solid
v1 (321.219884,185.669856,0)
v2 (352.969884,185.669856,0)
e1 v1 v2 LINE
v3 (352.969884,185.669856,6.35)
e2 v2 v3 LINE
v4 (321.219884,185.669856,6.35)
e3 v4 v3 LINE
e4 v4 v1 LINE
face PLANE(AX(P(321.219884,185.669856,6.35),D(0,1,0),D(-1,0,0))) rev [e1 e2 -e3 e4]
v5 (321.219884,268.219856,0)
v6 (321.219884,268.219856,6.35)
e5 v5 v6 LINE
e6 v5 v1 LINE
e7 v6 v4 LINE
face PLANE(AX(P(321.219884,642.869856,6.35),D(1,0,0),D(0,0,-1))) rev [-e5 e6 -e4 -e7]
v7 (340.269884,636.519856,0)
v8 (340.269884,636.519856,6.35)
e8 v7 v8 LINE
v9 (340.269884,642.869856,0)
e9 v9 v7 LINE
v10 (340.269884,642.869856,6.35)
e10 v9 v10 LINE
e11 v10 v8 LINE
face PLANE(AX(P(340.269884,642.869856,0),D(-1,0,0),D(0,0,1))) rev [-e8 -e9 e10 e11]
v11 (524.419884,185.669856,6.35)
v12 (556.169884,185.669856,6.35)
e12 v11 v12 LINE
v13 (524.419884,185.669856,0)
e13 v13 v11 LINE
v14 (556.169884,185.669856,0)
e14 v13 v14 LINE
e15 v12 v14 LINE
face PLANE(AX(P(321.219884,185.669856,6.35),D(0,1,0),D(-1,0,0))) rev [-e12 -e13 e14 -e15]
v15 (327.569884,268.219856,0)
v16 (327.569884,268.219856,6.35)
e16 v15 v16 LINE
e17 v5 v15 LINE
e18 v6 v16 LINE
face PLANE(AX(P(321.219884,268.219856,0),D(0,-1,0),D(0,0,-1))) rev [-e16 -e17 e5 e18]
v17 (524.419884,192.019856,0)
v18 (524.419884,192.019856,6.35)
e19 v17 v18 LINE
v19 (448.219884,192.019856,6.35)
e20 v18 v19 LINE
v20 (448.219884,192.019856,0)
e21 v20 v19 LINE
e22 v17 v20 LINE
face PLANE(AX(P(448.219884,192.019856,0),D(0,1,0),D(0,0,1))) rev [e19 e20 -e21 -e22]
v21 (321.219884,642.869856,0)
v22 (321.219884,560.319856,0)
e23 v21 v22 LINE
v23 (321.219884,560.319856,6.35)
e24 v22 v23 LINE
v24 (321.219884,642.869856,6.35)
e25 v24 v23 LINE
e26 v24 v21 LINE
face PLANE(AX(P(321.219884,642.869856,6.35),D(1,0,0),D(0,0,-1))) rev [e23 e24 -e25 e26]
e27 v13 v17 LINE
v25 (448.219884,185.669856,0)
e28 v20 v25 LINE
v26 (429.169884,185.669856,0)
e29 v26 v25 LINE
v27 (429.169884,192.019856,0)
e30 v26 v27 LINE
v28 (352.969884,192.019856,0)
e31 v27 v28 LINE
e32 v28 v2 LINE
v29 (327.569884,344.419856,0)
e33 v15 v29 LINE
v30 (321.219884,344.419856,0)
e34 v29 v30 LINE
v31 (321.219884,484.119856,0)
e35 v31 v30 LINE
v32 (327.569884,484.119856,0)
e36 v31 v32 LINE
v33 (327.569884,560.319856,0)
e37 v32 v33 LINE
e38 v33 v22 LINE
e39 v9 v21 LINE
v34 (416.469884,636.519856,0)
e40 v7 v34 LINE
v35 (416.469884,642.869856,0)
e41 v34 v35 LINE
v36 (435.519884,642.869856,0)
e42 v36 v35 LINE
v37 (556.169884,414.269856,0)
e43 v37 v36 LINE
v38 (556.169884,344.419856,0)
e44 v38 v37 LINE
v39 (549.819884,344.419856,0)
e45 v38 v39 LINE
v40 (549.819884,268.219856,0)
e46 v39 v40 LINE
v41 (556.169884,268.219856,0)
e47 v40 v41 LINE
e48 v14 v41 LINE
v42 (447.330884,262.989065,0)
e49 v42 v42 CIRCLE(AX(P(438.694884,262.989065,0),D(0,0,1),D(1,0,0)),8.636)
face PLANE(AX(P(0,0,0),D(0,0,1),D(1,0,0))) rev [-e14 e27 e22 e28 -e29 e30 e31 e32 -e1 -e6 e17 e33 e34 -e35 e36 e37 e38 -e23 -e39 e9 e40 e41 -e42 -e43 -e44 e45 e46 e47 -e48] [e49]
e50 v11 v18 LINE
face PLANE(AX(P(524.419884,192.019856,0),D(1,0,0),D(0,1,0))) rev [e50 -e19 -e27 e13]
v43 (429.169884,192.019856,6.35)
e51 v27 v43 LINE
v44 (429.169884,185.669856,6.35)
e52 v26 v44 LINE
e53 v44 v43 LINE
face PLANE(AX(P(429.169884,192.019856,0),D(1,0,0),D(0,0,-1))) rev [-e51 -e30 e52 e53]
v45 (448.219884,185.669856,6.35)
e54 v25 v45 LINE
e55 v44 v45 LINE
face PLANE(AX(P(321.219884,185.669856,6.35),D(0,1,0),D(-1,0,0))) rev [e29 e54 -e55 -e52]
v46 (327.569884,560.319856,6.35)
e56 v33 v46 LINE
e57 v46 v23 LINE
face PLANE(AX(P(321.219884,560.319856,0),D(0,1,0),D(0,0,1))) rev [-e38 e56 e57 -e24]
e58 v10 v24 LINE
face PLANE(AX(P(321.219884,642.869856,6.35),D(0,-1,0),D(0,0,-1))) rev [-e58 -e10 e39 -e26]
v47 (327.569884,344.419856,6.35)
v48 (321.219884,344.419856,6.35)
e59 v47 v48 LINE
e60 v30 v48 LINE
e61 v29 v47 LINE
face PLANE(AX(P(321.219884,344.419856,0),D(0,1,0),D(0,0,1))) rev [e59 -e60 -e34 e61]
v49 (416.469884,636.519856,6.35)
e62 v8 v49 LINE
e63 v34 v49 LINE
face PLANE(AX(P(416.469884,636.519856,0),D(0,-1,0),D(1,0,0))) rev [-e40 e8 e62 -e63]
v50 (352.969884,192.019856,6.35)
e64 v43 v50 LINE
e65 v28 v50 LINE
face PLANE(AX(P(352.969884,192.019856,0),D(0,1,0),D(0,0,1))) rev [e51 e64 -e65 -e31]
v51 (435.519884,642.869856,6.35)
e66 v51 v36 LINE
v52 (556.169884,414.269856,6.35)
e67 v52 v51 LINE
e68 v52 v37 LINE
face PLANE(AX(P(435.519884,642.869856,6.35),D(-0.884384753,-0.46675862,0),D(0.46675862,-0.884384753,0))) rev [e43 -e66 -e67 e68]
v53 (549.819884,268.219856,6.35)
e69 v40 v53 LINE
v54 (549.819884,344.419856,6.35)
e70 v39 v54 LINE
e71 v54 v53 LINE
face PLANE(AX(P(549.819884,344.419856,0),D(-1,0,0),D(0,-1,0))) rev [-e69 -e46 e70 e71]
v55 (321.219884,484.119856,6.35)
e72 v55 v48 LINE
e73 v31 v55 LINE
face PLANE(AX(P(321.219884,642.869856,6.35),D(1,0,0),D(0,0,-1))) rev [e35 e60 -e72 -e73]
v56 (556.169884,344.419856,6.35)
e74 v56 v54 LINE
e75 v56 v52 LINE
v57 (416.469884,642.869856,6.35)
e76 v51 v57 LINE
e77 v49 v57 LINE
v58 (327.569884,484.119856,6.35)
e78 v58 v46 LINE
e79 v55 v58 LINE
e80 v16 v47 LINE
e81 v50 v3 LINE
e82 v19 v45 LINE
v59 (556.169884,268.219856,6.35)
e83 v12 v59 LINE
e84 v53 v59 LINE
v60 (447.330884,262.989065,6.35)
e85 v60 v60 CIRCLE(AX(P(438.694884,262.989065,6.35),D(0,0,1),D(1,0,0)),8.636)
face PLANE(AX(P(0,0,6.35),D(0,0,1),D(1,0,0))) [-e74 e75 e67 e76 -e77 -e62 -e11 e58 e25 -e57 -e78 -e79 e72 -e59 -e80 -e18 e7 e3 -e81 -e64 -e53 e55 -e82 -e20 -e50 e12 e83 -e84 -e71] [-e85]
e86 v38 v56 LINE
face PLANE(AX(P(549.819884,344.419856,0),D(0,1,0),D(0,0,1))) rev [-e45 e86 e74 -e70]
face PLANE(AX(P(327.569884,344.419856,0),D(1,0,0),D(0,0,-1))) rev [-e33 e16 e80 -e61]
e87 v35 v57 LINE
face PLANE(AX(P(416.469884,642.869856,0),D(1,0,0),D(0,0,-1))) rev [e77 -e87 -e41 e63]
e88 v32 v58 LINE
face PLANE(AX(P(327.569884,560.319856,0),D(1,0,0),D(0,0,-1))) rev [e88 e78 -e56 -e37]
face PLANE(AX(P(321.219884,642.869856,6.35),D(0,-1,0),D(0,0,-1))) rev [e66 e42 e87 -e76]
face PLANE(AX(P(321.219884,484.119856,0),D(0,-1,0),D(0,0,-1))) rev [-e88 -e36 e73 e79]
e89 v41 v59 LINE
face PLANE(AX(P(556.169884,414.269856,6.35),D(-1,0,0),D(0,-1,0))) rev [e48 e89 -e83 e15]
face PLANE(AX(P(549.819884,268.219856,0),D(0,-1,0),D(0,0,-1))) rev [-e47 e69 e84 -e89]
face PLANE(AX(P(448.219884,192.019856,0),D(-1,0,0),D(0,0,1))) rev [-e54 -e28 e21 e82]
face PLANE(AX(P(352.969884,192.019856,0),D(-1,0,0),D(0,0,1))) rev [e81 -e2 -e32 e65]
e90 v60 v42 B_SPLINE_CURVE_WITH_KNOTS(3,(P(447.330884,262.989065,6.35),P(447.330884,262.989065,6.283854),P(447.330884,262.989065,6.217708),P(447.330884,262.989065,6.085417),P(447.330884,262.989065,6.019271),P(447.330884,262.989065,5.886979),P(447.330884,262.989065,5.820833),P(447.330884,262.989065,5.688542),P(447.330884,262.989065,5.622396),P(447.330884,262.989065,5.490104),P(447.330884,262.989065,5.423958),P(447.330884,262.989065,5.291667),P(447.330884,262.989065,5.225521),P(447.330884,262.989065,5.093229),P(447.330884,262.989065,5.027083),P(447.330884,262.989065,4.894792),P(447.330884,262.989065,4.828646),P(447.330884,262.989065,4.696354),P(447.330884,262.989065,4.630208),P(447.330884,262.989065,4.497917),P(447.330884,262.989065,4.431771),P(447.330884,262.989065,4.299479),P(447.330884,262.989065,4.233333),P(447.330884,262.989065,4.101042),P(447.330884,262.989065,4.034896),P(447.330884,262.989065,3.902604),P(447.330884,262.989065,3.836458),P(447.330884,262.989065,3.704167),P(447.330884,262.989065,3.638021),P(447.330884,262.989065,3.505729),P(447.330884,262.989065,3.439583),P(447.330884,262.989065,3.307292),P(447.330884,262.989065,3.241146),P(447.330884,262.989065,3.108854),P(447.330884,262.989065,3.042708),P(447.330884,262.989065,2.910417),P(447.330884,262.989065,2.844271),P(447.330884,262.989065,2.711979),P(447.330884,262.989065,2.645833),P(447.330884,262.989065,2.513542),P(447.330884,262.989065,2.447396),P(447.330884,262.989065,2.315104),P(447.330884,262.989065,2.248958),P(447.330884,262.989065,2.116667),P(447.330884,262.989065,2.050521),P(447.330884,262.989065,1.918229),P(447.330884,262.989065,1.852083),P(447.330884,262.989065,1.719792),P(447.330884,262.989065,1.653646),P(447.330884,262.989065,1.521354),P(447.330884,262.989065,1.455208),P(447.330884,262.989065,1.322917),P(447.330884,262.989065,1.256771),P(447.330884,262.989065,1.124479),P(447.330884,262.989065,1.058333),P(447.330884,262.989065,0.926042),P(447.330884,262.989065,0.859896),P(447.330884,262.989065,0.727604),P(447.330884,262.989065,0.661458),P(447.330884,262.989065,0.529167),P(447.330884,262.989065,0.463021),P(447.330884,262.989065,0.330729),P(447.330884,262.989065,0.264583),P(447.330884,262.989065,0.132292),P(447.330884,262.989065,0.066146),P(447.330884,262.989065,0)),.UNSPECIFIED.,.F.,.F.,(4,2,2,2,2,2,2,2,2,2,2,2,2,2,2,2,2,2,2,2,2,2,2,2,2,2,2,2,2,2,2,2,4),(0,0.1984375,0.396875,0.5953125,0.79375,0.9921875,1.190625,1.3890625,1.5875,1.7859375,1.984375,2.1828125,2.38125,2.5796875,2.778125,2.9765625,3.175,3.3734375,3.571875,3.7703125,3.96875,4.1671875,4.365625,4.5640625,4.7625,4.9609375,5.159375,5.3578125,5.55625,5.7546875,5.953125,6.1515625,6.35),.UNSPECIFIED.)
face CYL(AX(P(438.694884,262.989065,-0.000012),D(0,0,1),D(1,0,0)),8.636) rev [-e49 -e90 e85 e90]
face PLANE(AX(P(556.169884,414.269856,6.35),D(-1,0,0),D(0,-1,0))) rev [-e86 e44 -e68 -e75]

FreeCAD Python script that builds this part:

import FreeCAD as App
import Part
import Sketcher
from FreeCAD import Vector
Q = App.Units.Quantity

doc = App.newDocument("Part")
body = doc.addObject("PartDesign::Body", "Body")

# Sketch on XY plane
sketch1 = doc.addObject("Sketcher::SketchObject", "Sketch")
body.addObject(sketch1)
sketch1.AttachmentSupport = (doc.XY_Plane, [""])
sketch1.MapMode = "FlatFace"
sketch1.addGeometry(Part.LineSegment(Vector(556, 414, 0), Vector(436, 643, 0)), False)
sketch1.addGeometry(Part.LineSegment(Vector(436, 643, 0), Vector(321, 643, 0)), False)
sketch1.addGeometry(Part.LineSegment(Vector(321, 643, 0), Vector(321, 186, 0)), False)
sketch1.addGeometry(Part.LineSegment(Vector(321, 186, 0), Vector(556, 186, 0)), False)
sketch1.addGeometry(Part.LineSegment(Vector(556, 186, 0), Vector(556, 414, 0)), False)
sketch1.addConstraint(Sketcher.Constraint("Coincident", 0, 2, 1, 1))
sketch1.addConstraint(Sketcher.Constraint("Coincident", 1, 2, 2, 1))
sketch1.addConstraint(Sketcher.Constraint("Coincident", 2, 2, 3, 1))
sketch1.addConstraint(Sketcher.Constraint("Coincident", 3, 2, 4, 1))
sketch1.addConstraint(Sketcher.Constraint("Coincident", 4, 2, 0, 1))
sketch1.addConstraint(Sketcher.Constraint("Horizontal", 1))
sketch1.addConstraint(Sketcher.Constraint("Vertical", 2))
sketch1.addConstraint(Sketcher.Constraint("Horizontal", 3))
sketch1.addConstraint(Sketcher.Constraint("Vertical", 4))
sketch1.addConstraint(Sketcher.Constraint("DistanceY", 2, 2, 2, 1, Q("18 in")))
sketch1.addConstraint(Sketcher.Constraint("DistanceY", 4, 1, 4, 2, Q("9 in")))
sketch1.addConstraint(Sketcher.Constraint("DistanceX", 1, 2, 1, 1, Q("4.5 in")))
sketch1.addConstraint(Sketcher.Constraint("DistanceX", 3, 1, 3, 2, Q("9.25 in")))
sketch1.addConstraint(Sketcher.Constraint("DistanceX", -1, 1, 0, 2, 435.519884))
sketch1.addConstraint(Sketcher.Constraint("DistanceY", -1, 1, 0, 2, 642.869856))
pad1 = doc.addObject("PartDesign::Pad", "Pad")
body.addObject(pad1)
pad1.Profile = sketch1
pad1.Length = Q("0.25 in")

# Sketch on XY plane
sketch2 = doc.addObject("Sketcher::SketchObject", "Sketch001")
body.addObject(sketch2)
sketch2.AttachmentSupport = (doc.XY_Plane, [""])
sketch2.MapMode = "FlatFace"
sketch2.AttachmentOffset = App.Placement(Vector(0, 0, 0.25 * 25.4), App.Rotation())
sketch2.addGeometry(Part.LineSegment(Vector(340, 643, 0), Vector(340, 637, 0)), False)
sketch2.addGeometry(Part.LineSegment(Vector(340, 637, 0), Vector(416, 637, 0)), False)
sketch2.addGeometry(Part.LineSegment(Vector(416, 637, 0), Vector(416, 643, 0)), False)
sketch2.addGeometry(Part.LineSegment(Vector(416, 643, 0), Vector(340, 643, 0)), False)
sketch2.addGeometry(Part.LineSegment(Vector(321, 560, 0), Vector(321, 484, 0)), False)
sketch2.addGeometry(Part.LineSegment(Vector(321, 484, 0), Vector(328, 484, 0)), False)
sketch2.addGeometry(Part.LineSegment(Vector(328, 484, 0), Vector(328, 560, 0)), False)
sketch2.addGeometry(Part.LineSegment(Vector(328, 560, 0), Vector(321, 560, 0)), False)
sketch2.addGeometry(Part.LineSegment(Vector(321, 344, 0), Vector(321, 268, 0)), False)
sketch2.addGeometry(Part.LineSegment(Vector(321, 268, 0), Vector(328, 268, 0)), False)
sketch2.addGeometry(Part.LineSegment(Vector(328, 268, 0), Vector(328, 344, 0)), False)
sketch2.addGeometry(Part.LineSegment(Vector(328, 344, 0), Vector(321, 344, 0)), False)
sketch2.addGeometry(Part.LineSegment(Vector(353, 192, 0), Vector(353, 186, 0)), False)
sketch2.addGeometry(Part.LineSegment(Vector(353, 186, 0), Vector(429, 186, 0)), False)
sketch2.addGeometry(Part.LineSegment(Vector(429, 186, 0), Vector(429, 192, 0)), False)
sketch2.addGeometry(Part.LineSegment(Vector(429, 192, 0), Vector(353, 192, 0)), False)
sketch2.addGeometry(Part.LineSegment(Vector(448, 192, 0), Vector(448, 186, 0)), False)
sketch2.addGeometry(Part.LineSegment(Vector(448, 186, 0), Vector(524, 186, 0)), False)
sketch2.addGeometry(Part.LineSegment(Vector(524, 186, 0), Vector(524, 192, 0)), False)
sketch2.addGeometry(Part.LineSegment(Vector(524, 192, 0), Vector(448, 192, 0)), False)
sketch2.addGeometry(Part.LineSegment(Vector(550, 344, 0), Vector(550, 268, 0)), False)
sketch2.addGeometry(Part.LineSegment(Vector(550, 268, 0), Vector(556, 268, 0)), False)
sketch2.addGeometry(Part.LineSegment(Vector(556, 268, 0), Vector(556, 344, 0)), False)
sketch2.addGeometry(Part.LineSegment(Vector(556, 344, 0), Vector(550, 344, 0)), False)
sketch2.addConstraint(Sketcher.Constraint("Coincident", 0, 2, 1, 1))
sketch2.addConstraint(Sketcher.Constraint("Coincident", 1, 2, 2, 1))
sketch2.addConstraint(Sketcher.Constraint("Coincident", 2, 2, 3, 1))
sketch2.addConstraint(Sketcher.Constraint("Coincident", 3, 2, 0, 1))
sketch2.addConstraint(Sketcher.Constraint("Coincident", 4, 2, 5, 1))
sketch2.addConstraint(Sketcher.Constraint("Coincident", 5, 2, 6, 1))
sketch2.addConstraint(Sketcher.Constraint("Coincident", 6, 2, 7, 1))
sketch2.addConstraint(Sketcher.Constraint("Coincident", 7, 2, 4, 1))
sketch2.addConstraint(Sketcher.Constraint("Coincident", 8, 2, 9, 1))
sketch2.addConstraint(Sketcher.Constraint("Coincident", 9, 2, 10, 1))
sketch2.addConstraint(Sketcher.Constraint("Coincident", 10, 2, 11, 1))
sketch2.addConstraint(Sketcher.Constraint("Coincident", 11, 2, 8, 1))
sketch2.addConstraint(Sketcher.Constraint("Coincident", 12, 2, 13, 1))
sketch2.addConstraint(Sketcher.Constraint("Coincident", 13, 2, 14, 1))
sketch2.addConstraint(Sketcher.Constraint("Coincident", 14, 2, 15, 1))
sketch2.addConstraint(Sketcher.Constraint("Coincident", 15, 2, 12, 1))
sketch2.addConstraint(Sketcher.Constraint("Coincident", 16, 2, 17, 1))
sketch2.addConstraint(Sketcher.Constraint("Coincident", 17, 2, 18, 1))
sketch2.addConstraint(Sketcher.Constraint("Coincident", 18, 2, 19, 1))
sketch2.addConstraint(Sketcher.Constraint("Coincident", 19, 2, 16, 1))
sketch2.addConstraint(Sketcher.Constraint("Coincident", 20, 2, 21, 1))
sketch2.addConstraint(Sketcher.Constraint("Coincident", 21, 2, 22, 1))
sketch2.addConstraint(Sketcher.Constraint("Coincident", 22, 2, 23, 1))
sketch2.addConstraint(Sketcher.Constraint("Coincident", 23, 2, 20, 1))
sketch2.addConstraint(Sketcher.Constraint("Vertical", 0))
sketch2.addConstraint(Sketcher.Constraint("Horizontal", 1))
sketch2.addConstraint(Sketcher.Constraint("Vertical", 2))
sketch2.addConstraint(Sketcher.Constraint("Horizontal", 3))
sketch2.addConstraint(Sketcher.Constraint("Vertical", 4))
sketch2.addConstraint(Sketcher.Constraint("Horizontal", 5))
sketch2.addConstraint(Sketcher.Constraint("Vertical", 6))
sketch2.addConstraint(Sketcher.Constraint("Horizontal", 7))
sketch2.addConstraint(Sketcher.Constraint("Vertical", 8))
sketch2.addConstraint(Sketcher.Constraint("Horizontal", 9))
sketch2.addConstraint(Sketcher.Constraint("Vertical", 10))
sketch2.addConstraint(Sketcher.Constraint("Horizontal", 11))
sketch2.addConstraint(Sketcher.Constraint("Vertical", 12))
sketch2.addConstraint(Sketcher.Constraint("Horizontal", 13))
sketch2.addConstraint(Sketcher.Constraint("Vertical", 14))
sketch2.addConstraint(Sketcher.Constraint("Horizontal", 15))
sketch2.addConstraint(Sketcher.Constraint("Vertical", 16))
sketch2.addConstraint(Sketcher.Constraint("Horizontal", 17))
sketch2.addConstraint(Sketcher.Constraint("Vertical", 18))
sketch2.addConstraint(Sketcher.Constraint("Horizontal", 19))
sketch2.addConstraint(Sketcher.Constraint("Vertical", 20))
sketch2.addConstraint(Sketcher.Constraint("Horizontal", 21))
sketch2.addConstraint(Sketcher.Constraint("Vertical", 22))
sketch2.addConstraint(Sketcher.Constraint("Horizontal", 23))
sketch2.addConstraint(Sketcher.Constraint("Horizontal", 13, 2, 16, 2))
sketch2.addConstraint(Sketcher.Constraint("Horizontal", 15, 2, 18, 2))
sketch2.addConstraint(Sketcher.Constraint("Horizontal", 9, 2, 20, 2))
sketch2.addConstraint(Sketcher.Constraint("Horizontal", 11, 2, 22, 2))
sketch2.addConstraint(Sketcher.Constraint("Vertical", 7, 2, 8, 2))
sketch2.addConstraint(Sketcher.Constraint("Vertical", 6, 2, 9, 2))
sketch2.addConstraint(Sketcher.Constraint("Equal", 3, 13))
sketch2.addConstraint(Sketcher.Constraint("Equal", 15, 17))
sketch2.addConstraint(Sketcher.Constraint("Equal", 11, 21))
sketch2.addConstraint(Sketcher.Constraint("Equal", 23, 0))
sketch2.addConstraint(Sketcher.Constraint("Equal", 19, 4))
sketch2.addConstraint(Sketcher.Constraint("Equal", 6, 8))
sketch2.addConstraint(Sketcher.Constraint("Equal", 2, 12))
sketch2.addConstraint(Sketcher.Constraint("DistanceX", 1, 1, 1, 2, Q("3 in")))
sketch2.addConstraint(Sketcher.Constraint("DistanceY", 4, 2, 0, 2, Q("6 in")))
sketch2.addConstraint(Sketcher.Constraint("DistanceX", 9, 2, 12, 2, Q("1 in")))
sketch2.addConstraint(Sketcher.Constraint("DistanceY", 14, 2, 9, 2, Q("3 in")))
sketch2.addConstraint(Sketcher.Constraint("DistanceX", 18, 2, 20, 2, Q("1 in")))
sketch2.addConstraint(Sketcher.Constraint("DistanceX", 5, 1, 5, 2, Q("0.25 in")))
sketch2.addConstraint(Sketcher.Constraint("DistanceX", 5, 2, 0, 2, Q("0.5 in")))
sketch2.addConstraint(Sketcher.Constraint("DistanceY", 8, 2, 4, 2, Q("8.5 in")))
sketch2.addConstraint(Sketcher.Constraint("DistanceX", 13, 2, 16, 2, Q("0.75 in")))
sketch2.addConstraint(Sketcher.Constraint("DistanceX", -1, 1, 0, 2, 340.269884))
sketch2.addConstraint(Sketcher.Constraint("DistanceY", -1, 1, 0, 2, 636.519856))
pocket1 = doc.addObject("PartDesign::Pocket", "Pocket")
body.addObject(pocket1)
pocket1.Profile = sketch2
pocket1.Type = "ThroughAll"

# Sketch on XY plane
sketch3 = doc.addObject("Sketcher::SketchObject", "Sketch002")
body.addObject(sketch3)
sketch3.AttachmentSupport = (doc.XY_Plane, [""])
sketch3.MapMode = "FlatFace"
sketch3.addGeometry(Part.Circle(Vector(439, 263, 0), Vector(0, 0, 1), 9), False)
sketch3.addConstraint(Sketcher.Constraint("Diameter", 0, Q("0.68 in")))
sketch3.addConstraint(Sketcher.Constraint("DistanceX", -1, 1, 0, 3, 438.694884))
sketch3.addConstraint(Sketcher.Constraint("DistanceY", -1, 1, 0, 3, 262.989065))
pocket2 = doc.addObject("PartDesign::Pocket", "Pocket001")
body.addObject(pocket2)
pocket2.Profile = sketch3
pocket2.Type = "ThroughAll"
pocket2.Midplane = True

doc.recompute()
